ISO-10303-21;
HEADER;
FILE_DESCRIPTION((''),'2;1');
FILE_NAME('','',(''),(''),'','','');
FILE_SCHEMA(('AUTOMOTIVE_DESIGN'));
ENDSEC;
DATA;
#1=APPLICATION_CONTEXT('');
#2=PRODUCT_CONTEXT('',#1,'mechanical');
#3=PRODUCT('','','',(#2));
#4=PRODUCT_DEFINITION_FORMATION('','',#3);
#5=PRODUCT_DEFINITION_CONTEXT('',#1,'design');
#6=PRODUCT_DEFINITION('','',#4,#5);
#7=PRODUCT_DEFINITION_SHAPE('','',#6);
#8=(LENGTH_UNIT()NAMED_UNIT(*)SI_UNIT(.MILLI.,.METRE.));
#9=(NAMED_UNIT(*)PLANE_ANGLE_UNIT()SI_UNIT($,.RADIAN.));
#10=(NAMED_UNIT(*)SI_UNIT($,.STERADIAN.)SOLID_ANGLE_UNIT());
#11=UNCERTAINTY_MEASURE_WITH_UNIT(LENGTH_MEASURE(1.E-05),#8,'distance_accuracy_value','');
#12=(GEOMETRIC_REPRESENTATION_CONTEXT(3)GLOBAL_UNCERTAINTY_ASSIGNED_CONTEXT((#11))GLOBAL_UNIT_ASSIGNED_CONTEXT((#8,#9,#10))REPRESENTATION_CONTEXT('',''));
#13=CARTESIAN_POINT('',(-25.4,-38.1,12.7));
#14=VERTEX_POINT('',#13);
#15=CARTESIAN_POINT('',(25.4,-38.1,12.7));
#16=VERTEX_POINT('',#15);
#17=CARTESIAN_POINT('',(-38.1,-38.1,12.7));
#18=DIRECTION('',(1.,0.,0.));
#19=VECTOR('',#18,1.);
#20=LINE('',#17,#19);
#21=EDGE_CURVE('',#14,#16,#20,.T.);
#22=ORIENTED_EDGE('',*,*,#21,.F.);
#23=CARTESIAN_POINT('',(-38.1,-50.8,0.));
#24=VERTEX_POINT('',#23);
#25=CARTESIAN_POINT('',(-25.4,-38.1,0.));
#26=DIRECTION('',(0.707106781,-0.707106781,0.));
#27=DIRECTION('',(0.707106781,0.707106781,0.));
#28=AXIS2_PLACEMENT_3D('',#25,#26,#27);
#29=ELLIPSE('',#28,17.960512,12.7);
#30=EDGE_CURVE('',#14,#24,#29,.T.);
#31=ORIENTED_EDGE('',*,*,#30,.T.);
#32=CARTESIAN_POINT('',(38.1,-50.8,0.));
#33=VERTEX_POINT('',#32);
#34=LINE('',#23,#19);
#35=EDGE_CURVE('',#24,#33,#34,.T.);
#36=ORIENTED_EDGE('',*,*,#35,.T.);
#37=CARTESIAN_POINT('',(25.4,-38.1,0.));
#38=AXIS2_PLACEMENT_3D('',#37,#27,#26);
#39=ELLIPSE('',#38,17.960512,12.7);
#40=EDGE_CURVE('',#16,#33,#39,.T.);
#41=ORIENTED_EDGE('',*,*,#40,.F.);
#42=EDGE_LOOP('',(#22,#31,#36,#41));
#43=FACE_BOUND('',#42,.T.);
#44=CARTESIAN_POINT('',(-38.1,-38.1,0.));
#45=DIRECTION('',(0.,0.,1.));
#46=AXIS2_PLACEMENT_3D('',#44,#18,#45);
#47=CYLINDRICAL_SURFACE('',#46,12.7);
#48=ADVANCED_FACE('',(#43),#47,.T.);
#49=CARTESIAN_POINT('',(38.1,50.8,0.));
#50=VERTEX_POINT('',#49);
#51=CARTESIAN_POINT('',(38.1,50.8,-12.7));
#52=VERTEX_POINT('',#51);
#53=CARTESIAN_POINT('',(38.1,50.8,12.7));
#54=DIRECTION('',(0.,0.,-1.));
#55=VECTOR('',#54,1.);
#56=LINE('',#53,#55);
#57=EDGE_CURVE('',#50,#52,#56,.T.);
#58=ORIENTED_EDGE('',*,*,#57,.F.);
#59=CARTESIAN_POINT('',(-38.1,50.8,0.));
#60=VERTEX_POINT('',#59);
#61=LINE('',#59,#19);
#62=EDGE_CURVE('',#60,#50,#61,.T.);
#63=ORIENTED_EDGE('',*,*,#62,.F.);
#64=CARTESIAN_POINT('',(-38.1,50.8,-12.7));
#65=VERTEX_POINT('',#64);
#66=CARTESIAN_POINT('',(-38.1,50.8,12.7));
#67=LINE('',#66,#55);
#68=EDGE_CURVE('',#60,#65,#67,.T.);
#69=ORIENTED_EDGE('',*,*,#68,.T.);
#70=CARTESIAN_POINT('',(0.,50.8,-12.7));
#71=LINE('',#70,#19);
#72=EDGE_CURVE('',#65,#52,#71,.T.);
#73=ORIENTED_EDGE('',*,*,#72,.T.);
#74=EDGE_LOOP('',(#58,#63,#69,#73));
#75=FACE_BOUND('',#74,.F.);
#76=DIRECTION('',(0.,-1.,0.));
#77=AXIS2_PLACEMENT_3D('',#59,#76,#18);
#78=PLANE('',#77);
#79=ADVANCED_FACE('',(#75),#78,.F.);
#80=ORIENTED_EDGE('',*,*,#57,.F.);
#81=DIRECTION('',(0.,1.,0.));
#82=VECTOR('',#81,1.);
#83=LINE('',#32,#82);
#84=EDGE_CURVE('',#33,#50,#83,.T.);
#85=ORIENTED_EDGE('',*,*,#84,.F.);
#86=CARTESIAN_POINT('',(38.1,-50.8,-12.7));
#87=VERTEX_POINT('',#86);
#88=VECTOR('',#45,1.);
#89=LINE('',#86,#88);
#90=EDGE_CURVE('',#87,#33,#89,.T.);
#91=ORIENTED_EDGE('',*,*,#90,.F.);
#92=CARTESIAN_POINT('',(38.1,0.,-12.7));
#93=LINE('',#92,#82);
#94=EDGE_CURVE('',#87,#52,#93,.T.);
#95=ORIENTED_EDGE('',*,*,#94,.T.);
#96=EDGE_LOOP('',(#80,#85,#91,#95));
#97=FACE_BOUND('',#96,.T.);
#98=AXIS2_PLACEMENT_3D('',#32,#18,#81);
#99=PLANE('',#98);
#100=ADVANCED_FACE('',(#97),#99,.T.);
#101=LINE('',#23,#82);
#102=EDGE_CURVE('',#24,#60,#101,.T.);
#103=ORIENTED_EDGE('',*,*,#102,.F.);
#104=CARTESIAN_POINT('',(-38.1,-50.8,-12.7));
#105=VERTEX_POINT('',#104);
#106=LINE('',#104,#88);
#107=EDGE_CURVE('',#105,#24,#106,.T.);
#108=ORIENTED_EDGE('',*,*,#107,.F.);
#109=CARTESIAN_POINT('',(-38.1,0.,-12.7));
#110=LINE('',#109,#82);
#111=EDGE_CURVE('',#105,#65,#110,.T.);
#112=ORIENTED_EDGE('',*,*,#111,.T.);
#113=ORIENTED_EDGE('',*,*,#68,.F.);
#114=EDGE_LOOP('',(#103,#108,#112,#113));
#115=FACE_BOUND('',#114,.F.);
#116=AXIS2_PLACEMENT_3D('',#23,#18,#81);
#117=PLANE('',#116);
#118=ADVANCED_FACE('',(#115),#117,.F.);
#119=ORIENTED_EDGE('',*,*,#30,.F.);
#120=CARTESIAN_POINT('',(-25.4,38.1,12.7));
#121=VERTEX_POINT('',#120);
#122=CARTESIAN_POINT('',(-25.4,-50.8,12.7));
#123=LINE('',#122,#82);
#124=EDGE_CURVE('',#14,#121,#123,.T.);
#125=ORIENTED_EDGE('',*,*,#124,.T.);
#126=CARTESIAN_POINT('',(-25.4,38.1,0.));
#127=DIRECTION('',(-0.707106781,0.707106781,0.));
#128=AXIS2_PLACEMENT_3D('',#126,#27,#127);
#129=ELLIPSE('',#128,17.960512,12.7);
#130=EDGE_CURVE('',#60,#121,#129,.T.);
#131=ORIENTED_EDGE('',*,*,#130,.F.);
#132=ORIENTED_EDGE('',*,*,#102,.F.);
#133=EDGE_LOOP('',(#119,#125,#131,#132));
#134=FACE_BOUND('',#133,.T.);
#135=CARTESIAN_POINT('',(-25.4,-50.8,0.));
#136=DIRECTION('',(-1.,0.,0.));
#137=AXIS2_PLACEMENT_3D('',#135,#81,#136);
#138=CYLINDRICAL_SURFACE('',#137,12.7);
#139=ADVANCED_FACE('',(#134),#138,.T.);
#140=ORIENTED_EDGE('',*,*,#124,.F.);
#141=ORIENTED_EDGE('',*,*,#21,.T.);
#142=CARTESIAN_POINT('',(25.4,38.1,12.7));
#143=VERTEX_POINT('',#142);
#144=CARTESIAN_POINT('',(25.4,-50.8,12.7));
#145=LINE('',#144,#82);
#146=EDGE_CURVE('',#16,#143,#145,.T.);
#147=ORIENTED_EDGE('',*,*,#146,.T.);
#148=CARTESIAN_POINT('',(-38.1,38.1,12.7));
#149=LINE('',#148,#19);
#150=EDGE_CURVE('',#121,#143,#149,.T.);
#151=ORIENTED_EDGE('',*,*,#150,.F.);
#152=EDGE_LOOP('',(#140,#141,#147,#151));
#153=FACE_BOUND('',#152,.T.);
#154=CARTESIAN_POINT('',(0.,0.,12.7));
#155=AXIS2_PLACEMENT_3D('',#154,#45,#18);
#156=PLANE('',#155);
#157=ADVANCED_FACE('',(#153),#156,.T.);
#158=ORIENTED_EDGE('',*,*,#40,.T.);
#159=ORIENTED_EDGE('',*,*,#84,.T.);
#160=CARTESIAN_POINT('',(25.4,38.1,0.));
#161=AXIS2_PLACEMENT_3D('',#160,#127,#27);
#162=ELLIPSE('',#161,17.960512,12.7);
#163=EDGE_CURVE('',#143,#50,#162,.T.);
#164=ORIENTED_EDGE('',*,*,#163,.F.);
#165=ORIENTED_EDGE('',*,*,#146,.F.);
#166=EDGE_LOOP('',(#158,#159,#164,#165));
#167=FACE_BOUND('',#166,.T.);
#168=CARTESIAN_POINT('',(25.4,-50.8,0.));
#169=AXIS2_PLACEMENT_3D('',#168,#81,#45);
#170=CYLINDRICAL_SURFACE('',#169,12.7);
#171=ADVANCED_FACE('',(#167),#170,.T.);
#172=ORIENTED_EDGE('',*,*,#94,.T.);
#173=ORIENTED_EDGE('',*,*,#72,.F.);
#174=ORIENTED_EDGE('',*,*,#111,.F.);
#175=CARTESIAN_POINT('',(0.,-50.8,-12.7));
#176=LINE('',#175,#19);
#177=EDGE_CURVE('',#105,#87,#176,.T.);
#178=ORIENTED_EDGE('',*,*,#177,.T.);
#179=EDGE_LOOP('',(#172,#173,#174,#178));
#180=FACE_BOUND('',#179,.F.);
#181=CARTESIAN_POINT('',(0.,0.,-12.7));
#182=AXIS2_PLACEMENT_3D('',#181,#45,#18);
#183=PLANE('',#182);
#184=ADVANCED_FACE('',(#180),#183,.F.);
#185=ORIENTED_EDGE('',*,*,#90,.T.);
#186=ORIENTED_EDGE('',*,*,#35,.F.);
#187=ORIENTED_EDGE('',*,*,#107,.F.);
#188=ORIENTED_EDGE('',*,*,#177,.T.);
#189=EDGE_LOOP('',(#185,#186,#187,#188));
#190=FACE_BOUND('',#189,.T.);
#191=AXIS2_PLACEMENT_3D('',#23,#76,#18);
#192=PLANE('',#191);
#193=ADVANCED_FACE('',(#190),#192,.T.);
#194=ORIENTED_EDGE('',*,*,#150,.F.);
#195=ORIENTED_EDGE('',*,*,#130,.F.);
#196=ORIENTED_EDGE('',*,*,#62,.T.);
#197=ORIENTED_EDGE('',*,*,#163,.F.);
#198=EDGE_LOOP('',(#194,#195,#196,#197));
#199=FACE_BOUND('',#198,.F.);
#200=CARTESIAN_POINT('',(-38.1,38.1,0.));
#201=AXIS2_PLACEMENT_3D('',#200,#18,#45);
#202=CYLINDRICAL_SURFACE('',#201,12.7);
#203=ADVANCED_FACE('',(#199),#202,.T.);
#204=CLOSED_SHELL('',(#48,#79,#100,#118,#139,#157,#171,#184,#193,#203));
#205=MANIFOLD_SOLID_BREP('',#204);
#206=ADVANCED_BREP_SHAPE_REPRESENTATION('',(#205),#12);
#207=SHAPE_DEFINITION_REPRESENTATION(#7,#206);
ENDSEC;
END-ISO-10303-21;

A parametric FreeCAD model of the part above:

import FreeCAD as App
import Part
import Sketcher
Q = App.Units.Quantity


def edges_at(feature, points):
    """Names of the edges that pass closest to the given points."""
    edges = feature.Shape.Edges
    near = lambda p: min(range(len(edges)), key=lambda i: edges[i].distToShape(Part.Vertex(*p))[0])
    return sorted({f"Edge{near(p) + 1}" for p in points})


def add_polygon(sketch, points):
    """Adds a closed chain of lines whose ends are joined by coincident constraints."""
    first, n = sketch.GeometryCount, len(points)
    for a, b in zip(points, points[1:] + points[:1]):
        sketch.addGeometry(Part.LineSegment(App.Vector(*a, 0), App.Vector(*b, 0)), False)
    for i in range(n):
        sketch.addConstraint(Sketcher.Constraint("Coincident", first + i, 2, first + (i + 1) % n, 1))

doc = App.newDocument("Part")
body = doc.addObject("PartDesign::Body", "Body")

sketch1 = doc.addObject("Sketcher::SketchObject", "Sketch")
body.addObject(sketch1)
sketch1.AttachmentSupport = (doc.XY_Plane, [""])
sketch1.MapMode = "FlatFace"
add_polygon(sketch1, [(-38, 51), (-38, -51), (38, -51), (38, 51)])
sketch1.addConstraint([
    Sketcher.Constraint("Vertical", 0),
    Sketcher.Constraint("Horizontal", 1),
    Sketcher.Constraint("Vertical", 2),
    Sketcher.Constraint("Horizontal", 3),
    Sketcher.Constraint("Symmetric", 0, 2, 2, 2, -1, 1),
    Sketcher.Constraint("DistanceX", 1, 1, 1, 2, Q("3 in")),
    Sketcher.Constraint("DistanceY", 0, 2, 0, 1, Q("4 in")),
])
pad1 = doc.addObject("PartDesign::Pad", "Pad")
body.addObject(pad1)
pad1.Profile = sketch1
pad1.Length = Q("1 in")
pad1.Midplane = True
doc.recompute()

fillet = doc.addObject("PartDesign::Fillet", "Fillet")
body.addObject(fillet)
fillet.Base = (pad1, edges_at(pad1, [
    (0, -50.8, 12.7),
    (38.1, 0, 12.7),
    (-38.1, 0, 12.7),
    (0, 50.8, 12.7),
]))
fillet.Radius = Q("0.5 in")

doc.recompute()
